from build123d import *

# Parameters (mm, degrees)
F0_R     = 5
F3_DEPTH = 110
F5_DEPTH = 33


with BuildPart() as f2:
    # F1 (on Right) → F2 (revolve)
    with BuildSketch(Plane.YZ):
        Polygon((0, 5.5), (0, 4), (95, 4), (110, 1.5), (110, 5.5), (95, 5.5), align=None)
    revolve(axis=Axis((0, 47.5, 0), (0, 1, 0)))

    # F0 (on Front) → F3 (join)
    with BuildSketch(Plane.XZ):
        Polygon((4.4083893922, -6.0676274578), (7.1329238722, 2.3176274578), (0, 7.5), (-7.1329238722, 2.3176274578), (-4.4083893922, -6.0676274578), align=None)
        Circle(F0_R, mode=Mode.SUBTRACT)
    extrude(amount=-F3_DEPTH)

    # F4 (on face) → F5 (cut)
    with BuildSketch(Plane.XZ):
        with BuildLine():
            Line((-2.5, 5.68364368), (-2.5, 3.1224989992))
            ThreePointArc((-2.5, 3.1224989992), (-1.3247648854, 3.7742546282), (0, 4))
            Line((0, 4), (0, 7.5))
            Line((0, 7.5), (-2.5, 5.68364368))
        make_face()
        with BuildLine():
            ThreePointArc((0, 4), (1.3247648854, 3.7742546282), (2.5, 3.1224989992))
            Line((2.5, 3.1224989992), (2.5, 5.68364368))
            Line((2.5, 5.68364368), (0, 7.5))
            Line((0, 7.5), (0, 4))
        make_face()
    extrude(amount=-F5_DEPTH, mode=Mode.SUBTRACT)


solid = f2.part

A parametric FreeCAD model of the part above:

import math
import FreeCAD as App
import Part
import Sketcher
from FreeCAD import Vector
Q = App.Units.Quantity

doc = App.newDocument("Part")
body = doc.addObject("PartDesign::Body", "Body")

sketch1 = body.newObject("Sketcher::SketchObject", "Sketch")
sketch1.AttachmentSupport = (doc.getObject("YZ_Plane"), [""])
sketch1.MapMode = "FlatFace"
sketch1.addGeometry([
    Part.LineSegment(Vector(0, 5.5, 0), Vector(0, 4, 0)),
    Part.LineSegment(Vector(0, 4, 0), Vector(95, 4, 0)),
    Part.LineSegment(Vector(95, 4, 0), Vector(110, 1.5, 0)),
    Part.LineSegment(Vector(110, 1.5, 0), Vector(110, 5.5, 0)),
    Part.LineSegment(Vector(110, 5.5, 0), Vector(0, 5.5, 0)),
], False)
sketch1.addConstraint([
    Sketcher.Constraint("Coincident", 0, 2, 1, 1),
    Sketcher.Constraint("Coincident", 1, 2, 2, 1),
    Sketcher.Constraint("Coincident", 2, 2, 3, 1),
    Sketcher.Constraint("Coincident", 3, 2, 4, 1),
    Sketcher.Constraint("Coincident", 4, 2, 0, 1),
    Sketcher.Constraint("Vertical", 0),
    Sketcher.Constraint("Horizontal", 1),
    Sketcher.Constraint("Vertical", 3),
    Sketcher.Constraint("Horizontal", 4),
    Sketcher.Constraint("PointOnObject", 0, 2, -2),
    Sketcher.Constraint("DistanceX", 1, 1, 1, 2, Q("95 mm")),
    Sketcher.Constraint("DistanceX", 4, 2, 4, 1, Q("110 mm")),
    Sketcher.Constraint("DistanceY", 3, 1, 3, 2, Q("4 mm")),
    Sketcher.Constraint("DistanceY", 0, 2, 0, 1, Q("1.5 mm")),
    Sketcher.Constraint("DistanceY", -1, 1, 0, 2, Q("4 mm")),
])
revolution = body.newObject("PartDesign::Revolution", "Revolution")
revolution.Profile = sketch1
revolution.ReferenceAxis = (sketch1, ["H_Axis"])
revolution.Angle = 360

sketch2 = body.newObject("Sketcher::SketchObject", "Sketch001")
sketch2.AttachmentSupport = (doc.getObject("XZ_Plane"), [""])
sketch2.MapMode = "FlatFace"
sketch2.addGeometry([
    Part.LineSegment(Vector(4, -6, 0), Vector(7, 2, 0)),
    Part.LineSegment(Vector(7, 2, 0), Vector(0, 8, 0)),
    Part.LineSegment(Vector(0, 8, 0), Vector(-7, 2, 0)),
    Part.LineSegment(Vector(-7, 2, 0), Vector(-4, -6, 0)),
    Part.LineSegment(Vector(-4, -6, 0), Vector(4, -6, 0)),
    Part.Circle(Vector(0, 0, 0), Vector(0, 0, 1), 5),
], False)
sketch2.addConstraint([
    Sketcher.Constraint("Coincident", 0, 2, 1, 1),
    Sketcher.Constraint("Coincident", 1, 2, 2, 1),
    Sketcher.Constraint("Coincident", 2, 2, 3, 1),
    Sketcher.Constraint("Coincident", 3, 2, 4, 1),
    Sketcher.Constraint("Coincident", 4, 2, 0, 1),
    Sketcher.Constraint("Horizontal", 4),
    Sketcher.Constraint("Coincident", 5, 3, -1, 1),
    Sketcher.Constraint("Symmetric", 0, 2, 2, 2, -2),
    Sketcher.Constraint("PointOnObject", 1, 2, -2),
    Sketcher.Constraint("Equal", 0, 1),
    Sketcher.Constraint("Equal", 2, 3),
    Sketcher.Constraint("Diameter", 5, Q("10 mm")),
    Sketcher.Constraint("Angle", 0, Q("72 deg")),
    Sketcher.Constraint("Angle", 1, Q("144 deg")),
    Sketcher.Constraint("DistanceY", -1, 1, 1, 2, Q("7.5 mm")),
    Sketcher.Constraint("DistanceX", 4, 1, 4, 2, Q("8.816779 mm")),
])
pad1 = body.newObject("PartDesign::Pad", "Pad")
pad1.Profile = sketch2
pad1.Length = 110
pad1.Reversed = True

sketch3 = body.newObject("Sketcher::SketchObject", "Sketch002")
sketch3.AttachmentSupport = (doc.getObject("XZ_Plane"), [""])
sketch3.MapMode = "FlatFace"
sketch3.addGeometry([
    Part.LineSegment(Vector(-2.5, 5.7, 0), Vector(-2.5, 3.1, 0)),
    Part.ArcOfCircle(Part.Circle(Vector(0, 0, 0), Vector(0, 0, 1), 4), math.radians(90), math.radians(129)),
    Part.ArcOfCircle(Part.Circle(Vector(0, 0, 0), Vector(0, 0, 1), 4), math.radians(51), math.radians(90)),
    Part.LineSegment(Vector(2.5, 3.1, 0), Vector(2.5, 5.7, 0)),
    Part.LineSegment(Vector(2.5, 5.7, 0), Vector(0, 7.5, 0)),
    Part.LineSegment(Vector(0, 7.5, 0), Vector(-2.5, 5.7, 0)),
], False)
sketch3.addConstraint([
    Sketcher.Constraint("Coincident", 0, 2, 1, 2),
    Sketcher.Constraint("Tangent", 1, 1, 2, 2),
    Sketcher.Constraint("Coincident", 2, 1, 3, 1),
    Sketcher.Constraint("Coincident", 3, 2, 4, 1),
    Sketcher.Constraint("Coincident", 4, 2, 5, 1),
    Sketcher.Constraint("Coincident", 5, 2, 0, 1),
    Sketcher.Constraint("Vertical", 0),
    Sketcher.Constraint("Vertical", 3),
    Sketcher.Constraint("Coincident", 1, 3, -1, 1),
    Sketcher.Constraint("Equal", 1, 2),
    Sketcher.Constraint("Symmetric", 3, 2, 5, 2, -2),
    Sketcher.Constraint("PointOnObject", 1, 1, -2),
    Sketcher.Constraint("PointOnObject", 4, 2, -2),
    Sketcher.Constraint("Radius", 1, Q("4 mm")),
    Sketcher.Constraint("Angle", 4, Q("144 deg")),
    Sketcher.Constraint("DistanceX", 0, 2, 2, 1, Q("5 mm")),
    Sketcher.Constraint("DistanceY", -1, 1, 4, 2, Q("7.5 mm")),
])
pocket1 = body.newObject("PartDesign::Pocket", "Pocket")
pocket1.Profile = sketch3
pocket1.Length = 33

doc.recompute()
